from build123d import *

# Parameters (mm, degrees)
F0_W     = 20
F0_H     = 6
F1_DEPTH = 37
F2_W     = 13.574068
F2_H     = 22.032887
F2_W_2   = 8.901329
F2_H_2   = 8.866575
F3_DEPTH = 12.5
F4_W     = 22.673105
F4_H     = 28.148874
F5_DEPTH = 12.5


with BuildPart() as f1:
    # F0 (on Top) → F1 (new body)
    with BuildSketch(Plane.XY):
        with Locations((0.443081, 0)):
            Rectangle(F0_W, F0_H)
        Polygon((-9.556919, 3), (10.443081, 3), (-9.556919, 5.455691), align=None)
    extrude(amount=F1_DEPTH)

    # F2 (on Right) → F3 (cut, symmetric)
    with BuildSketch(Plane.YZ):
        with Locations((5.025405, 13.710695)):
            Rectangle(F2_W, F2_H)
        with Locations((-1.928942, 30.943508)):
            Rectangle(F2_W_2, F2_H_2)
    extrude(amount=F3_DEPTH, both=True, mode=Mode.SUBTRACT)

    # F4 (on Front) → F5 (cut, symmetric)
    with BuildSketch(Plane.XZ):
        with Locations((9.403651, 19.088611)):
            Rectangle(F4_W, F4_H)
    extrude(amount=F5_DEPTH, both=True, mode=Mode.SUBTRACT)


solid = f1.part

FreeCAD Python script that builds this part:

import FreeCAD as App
import Part
import Sketcher

V = App.Vector
Q = App.Units.Quantity

doc = App.newDocument("Part")
body = doc.addObject("PartDesign::Body", "Body")

sketch1 = body.newObject("Sketcher::SketchObject", "Sketch")
sketch1.AttachmentSupport = (doc.getObject("XY_Plane"), [""])
sketch1.MapMode = "FlatFace"
sketch1.addGeometry([
    Part.LineSegment(V(-10, -3, 0), V(10, -3, 0)),
    Part.LineSegment(V(10, -3, 0), V(10, 3, 0)),
    Part.LineSegment(V(10, 3, 0), V(-10, 5, 0)),
    Part.LineSegment(V(-10, 5, 0), V(-10, -3, 0)),
], False)
sketch1.addConstraint([
    Sketcher.Constraint("Coincident", 0, 2, 1, 1),
    Sketcher.Constraint("Coincident", 1, 2, 2, 1),
    Sketcher.Constraint("Coincident", 2, 2, 3, 1),
    Sketcher.Constraint("Coincident", 3, 2, 0, 1),
    Sketcher.Constraint("Horizontal", 0),
    Sketcher.Constraint("Vertical", 1),
    Sketcher.Constraint("Vertical", 3),
    Sketcher.Constraint("DistanceX", 0, 1, 0, 2, 20.0),
    Sketcher.Constraint("DistanceY", 1, 1, 1, 2, 6.0),
    Sketcher.Constraint("Angle", 2, Q("173.000001 deg")),
    Sketcher.Constraint("DistanceY", 0, 2, -1, 1, 3.0),
    Sketcher.Constraint("DistanceX", -1, 1, 0, 2, 10.443081),
])
pad1 = body.newObject("PartDesign::Pad", "Pad")
pad1.Profile = sketch1
pad1.Length = 37

sketch2 = body.newObject("Sketcher::SketchObject", "Sketch001")
sketch2.AttachmentSupport = (doc.getObject("YZ_Plane"), [""])
sketch2.MapMode = "FlatFace"
sketch2.addGeometry([
    Part.LineSegment(V(-2, 25, 0), V(-2, 3, 0)),
    Part.LineSegment(V(-2, 3, 0), V(12, 3, 0)),
    Part.LineSegment(V(12, 3, 0), V(12, 25, 0)),
    Part.LineSegment(V(12, 25, 0), V(-2, 25, 0)),
    Part.LineSegment(V(-6, 35, 0), V(-6, 27, 0)),
    Part.LineSegment(V(-6, 27, 0), V(3, 27, 0)),
    Part.LineSegment(V(3, 27, 0), V(3, 35, 0)),
    Part.LineSegment(V(3, 35, 0), V(-6, 35, 0)),
], False)
sketch2.addConstraint([
    Sketcher.Constraint("Coincident", 0, 2, 1, 1),
    Sketcher.Constraint("Coincident", 1, 2, 2, 1),
    Sketcher.Constraint("Coincident", 2, 2, 3, 1),
    Sketcher.Constraint("Coincident", 3, 2, 0, 1),
    Sketcher.Constraint("Coincident", 4, 2, 5, 1),
    Sketcher.Constraint("Coincident", 5, 2, 6, 1),
    Sketcher.Constraint("Coincident", 6, 2, 7, 1),
    Sketcher.Constraint("Coincident", 7, 2, 4, 1),
    Sketcher.Constraint("Vertical", 0),
    Sketcher.Constraint("Horizontal", 1),
    Sketcher.Constraint("Vertical", 2),
    Sketcher.Constraint("Horizontal", 3),
    Sketcher.Constraint("Vertical", 4),
    Sketcher.Constraint("Horizontal", 5),
    Sketcher.Constraint("Vertical", 6),
    Sketcher.Constraint("Horizontal", 7),
    Sketcher.Constraint("DistanceX", 5, 1, 5, 2, 8.901329),
    Sketcher.Constraint("DistanceX", 1, 1, 1, 2, 13.574068),
    Sketcher.Constraint("DistanceY", 0, 2, 0, 1, 22.032887),
    Sketcher.Constraint("DistanceY", 4, 2, 4, 1, 8.866575),
    Sketcher.Constraint("DistanceX", 0, 2, -1, 1, 1.761629),
    Sketcher.Constraint("DistanceY", -1, 1, 0, 2, 2.694252),
    Sketcher.Constraint("DistanceY", -1, 1, 4, 2, 26.51022),
    Sketcher.Constraint("DistanceX", 3, 2, 5, 2, 4.283352),
])
pocket1 = body.newObject("PartDesign::Pocket", "Pocket")
pocket1.Profile = sketch2
pocket1.Length = 25
pocket1.Midplane = True

sketch3 = body.newObject("Sketcher::SketchObject", "Sketch002")
sketch3.AttachmentSupport = (doc.getObject("XZ_Plane"), [""])
sketch3.MapMode = "FlatFace"
sketch3.addGeometry([
    Part.LineSegment(V(-2, 33, 0), V(-2, 5, 0)),
    Part.LineSegment(V(-2, 5, 0), V(21, 5, 0)),
    Part.LineSegment(V(21, 5, 0), V(21, 33, 0)),
    Part.LineSegment(V(21, 33, 0), V(-2, 33, 0)),
], False)
sketch3.addConstraint([
    Sketcher.Constraint("Coincident", 0, 2, 1, 1),
    Sketcher.Constraint("Coincident", 1, 2, 2, 1),
    Sketcher.Constraint("Coincident", 2, 2, 3, 1),
    Sketcher.Constraint("Coincident", 3, 2, 0, 1),
    Sketcher.Constraint("Vertical", 0),
    Sketcher.Constraint("Horizontal", 1),
    Sketcher.Constraint("Vertical", 2),
    Sketcher.Constraint("Horizontal", 3),
    Sketcher.Constraint("DistanceX", 0, 2, -1, 1, 1.932902),
    Sketcher.Constraint("DistanceX", 1, 1, 1, 2, 22.673105),
    Sketcher.Constraint("DistanceY", 0, 2, 0, 1, 28.148874),
    Sketcher.Constraint("DistanceY", -1, 1, 2, 2, 33.163048),
])
pocket2 = body.newObject("PartDesign::Pocket", "Pocket001")
pocket2.Profile = sketch3
pocket2.Length = 25
pocket2.Midplane = True

doc.recompute()
